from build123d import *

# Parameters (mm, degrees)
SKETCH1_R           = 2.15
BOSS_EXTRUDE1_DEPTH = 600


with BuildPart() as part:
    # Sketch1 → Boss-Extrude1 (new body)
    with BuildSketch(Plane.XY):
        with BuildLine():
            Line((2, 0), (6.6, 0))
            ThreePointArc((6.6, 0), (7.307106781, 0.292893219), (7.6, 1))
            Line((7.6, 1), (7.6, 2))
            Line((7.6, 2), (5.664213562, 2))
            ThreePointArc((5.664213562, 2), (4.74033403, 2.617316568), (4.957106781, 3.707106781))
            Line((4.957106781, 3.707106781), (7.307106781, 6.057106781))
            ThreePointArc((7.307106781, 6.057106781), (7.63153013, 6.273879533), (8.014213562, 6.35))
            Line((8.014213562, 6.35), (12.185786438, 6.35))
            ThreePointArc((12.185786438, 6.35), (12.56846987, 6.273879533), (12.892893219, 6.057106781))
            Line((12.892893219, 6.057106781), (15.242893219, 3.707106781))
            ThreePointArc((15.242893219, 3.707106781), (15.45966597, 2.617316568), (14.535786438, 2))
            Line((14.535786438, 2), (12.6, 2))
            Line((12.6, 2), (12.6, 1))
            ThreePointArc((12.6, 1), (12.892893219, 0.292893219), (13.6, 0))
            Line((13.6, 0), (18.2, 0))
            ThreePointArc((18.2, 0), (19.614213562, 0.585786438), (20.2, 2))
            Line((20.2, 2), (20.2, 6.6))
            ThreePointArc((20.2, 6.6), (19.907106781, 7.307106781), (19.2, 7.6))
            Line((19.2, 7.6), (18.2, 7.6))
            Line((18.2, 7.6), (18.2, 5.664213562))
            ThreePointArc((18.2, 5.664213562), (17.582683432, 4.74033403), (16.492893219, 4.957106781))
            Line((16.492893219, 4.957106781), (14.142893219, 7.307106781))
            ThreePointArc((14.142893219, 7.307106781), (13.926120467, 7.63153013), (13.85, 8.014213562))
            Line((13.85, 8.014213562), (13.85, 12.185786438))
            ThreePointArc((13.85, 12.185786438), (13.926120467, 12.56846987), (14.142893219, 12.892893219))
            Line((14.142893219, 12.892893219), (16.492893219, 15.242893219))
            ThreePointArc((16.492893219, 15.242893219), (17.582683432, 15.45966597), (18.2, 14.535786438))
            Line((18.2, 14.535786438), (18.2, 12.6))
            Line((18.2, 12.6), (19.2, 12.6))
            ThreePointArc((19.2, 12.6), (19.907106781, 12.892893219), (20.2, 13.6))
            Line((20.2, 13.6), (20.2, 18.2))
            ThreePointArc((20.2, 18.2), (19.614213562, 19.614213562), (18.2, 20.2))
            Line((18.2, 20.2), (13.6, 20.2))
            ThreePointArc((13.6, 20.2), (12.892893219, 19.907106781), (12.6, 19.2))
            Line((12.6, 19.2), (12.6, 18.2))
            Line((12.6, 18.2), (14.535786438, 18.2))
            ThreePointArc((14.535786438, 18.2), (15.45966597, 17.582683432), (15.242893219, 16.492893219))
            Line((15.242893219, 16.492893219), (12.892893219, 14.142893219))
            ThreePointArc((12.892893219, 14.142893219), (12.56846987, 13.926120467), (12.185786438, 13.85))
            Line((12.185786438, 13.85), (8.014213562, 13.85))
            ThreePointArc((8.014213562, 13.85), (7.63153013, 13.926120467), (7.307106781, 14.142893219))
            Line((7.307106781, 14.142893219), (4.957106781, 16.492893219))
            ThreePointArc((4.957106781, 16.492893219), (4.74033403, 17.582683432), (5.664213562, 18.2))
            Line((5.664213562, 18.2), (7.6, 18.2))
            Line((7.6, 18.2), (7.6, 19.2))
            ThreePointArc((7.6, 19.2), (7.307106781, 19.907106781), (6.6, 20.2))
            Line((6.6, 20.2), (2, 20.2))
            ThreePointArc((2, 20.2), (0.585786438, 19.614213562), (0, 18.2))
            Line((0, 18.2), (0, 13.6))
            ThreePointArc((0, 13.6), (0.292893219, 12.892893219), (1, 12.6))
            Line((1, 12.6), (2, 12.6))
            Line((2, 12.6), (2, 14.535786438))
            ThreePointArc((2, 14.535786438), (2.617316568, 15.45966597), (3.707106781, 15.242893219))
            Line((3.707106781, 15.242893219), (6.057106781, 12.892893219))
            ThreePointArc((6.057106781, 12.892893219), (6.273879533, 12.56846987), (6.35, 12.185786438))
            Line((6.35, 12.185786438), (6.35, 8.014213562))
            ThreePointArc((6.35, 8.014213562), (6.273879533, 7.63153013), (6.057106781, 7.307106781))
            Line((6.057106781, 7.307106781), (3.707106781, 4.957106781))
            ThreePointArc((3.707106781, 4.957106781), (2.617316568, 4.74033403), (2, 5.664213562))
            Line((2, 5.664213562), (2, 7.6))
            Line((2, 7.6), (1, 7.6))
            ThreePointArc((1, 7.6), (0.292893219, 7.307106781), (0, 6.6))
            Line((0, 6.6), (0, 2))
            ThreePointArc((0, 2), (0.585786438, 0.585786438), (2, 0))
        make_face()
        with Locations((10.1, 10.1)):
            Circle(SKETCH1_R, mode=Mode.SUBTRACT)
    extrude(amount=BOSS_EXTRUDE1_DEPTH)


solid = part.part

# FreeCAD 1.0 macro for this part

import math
import FreeCAD as App
import Part
import Sketcher

V = App.Vector
Q = App.Units.Quantity

doc = App.newDocument("Part")
params = doc.addObject("Spreadsheet::Sheet", "Params")
for row, (alias, value) in enumerate([
    ("sketch1_radius", "1 mm"),
    ("sketch1_radius2", "2 mm"),
    ("sketch1_diameter", "4.3 mm"),
    ("sketch1_width", "4.6 mm"),
    ("pad1_length", "600 mm"),
], start=1):
    params.set(f"A{row}", alias)
    params.set(f"B{row}", "=" + value)
    params.setAlias(f"B{row}", alias)

body = doc.addObject("PartDesign::Body", "Body")

# Sketch on XY plane
sketch1 = body.newObject("Sketcher::SketchObject", "Sketch")
sketch1.AttachmentSupport = (doc.getObject("XY_Plane"), [""])
sketch1.MapMode = "FlatFace"
sketch1.addGeometry([
    Part.LineSegment(V(2, 0, 0), V(6.6, 0, 0)),  # 0
    Part.ArcOfCircle(Part.Circle(V(6.6, 1, 0), V(0, 0, 1), 1), math.radians(-90), math.radians(0)),  # 1
    Part.LineSegment(V(7.6, 1, 0), V(7.6, 2, 0)),  # 2
    Part.LineSegment(V(7.6, 2, 0), V(5.7, 2, 0)),  # 3
    Part.ArcOfCircle(Part.Circle(V(5.7, 3, 0), V(0, 0, 1), 1), math.radians(135), math.radians(270)),  # 4
    Part.LineSegment(V(5, 3.7, 0), V(7.3, 6.1, 0)),  # 5
    Part.ArcOfCircle(Part.Circle(V(8, 5.4, 0), V(0, 0, 1), 1), math.radians(90), math.radians(135)),  # 6
    Part.LineSegment(V(8, 6.3, 0), V(12.2, 6.3, 0)),  # 7
    Part.ArcOfCircle(Part.Circle(V(12.2, 5.4, 0), V(0, 0, 1), 1), math.radians(45), math.radians(90)),  # 8
    Part.LineSegment(V(12.9, 6.1, 0), V(15.2, 3.7, 0)),  # 9
    Part.ArcOfCircle(Part.Circle(V(14.5, 3, 0), V(0, 0, 1), 1), math.radians(-90), math.radians(45)),  # 10
    Part.LineSegment(V(14.5, 2, 0), V(12.6, 2, 0)),  # 11
    Part.LineSegment(V(12.6, 2, 0), V(12.6, 1, 0)),  # 12
    Part.ArcOfCircle(Part.Circle(V(13.6, 1, 0), V(0, 0, 1), 1), math.radians(-180), math.radians(-90)),  # 13
    Part.LineSegment(V(13.6, 0, 0), V(18.2, 0, 0)),  # 14
    Part.ArcOfCircle(Part.Circle(V(18.2, 2, 0), V(0, 0, 1), 2), math.radians(-90), math.radians(0)),  # 15
    Part.LineSegment(V(20.2, 2, 0), V(20.2, 6.6, 0)),  # 16
    Part.ArcOfCircle(Part.Circle(V(19.2, 6.6, 0), V(0, 0, 1), 1), math.radians(0), math.radians(90)),  # 17
    Part.LineSegment(V(19.2, 7.6, 0), V(18.2, 7.6, 0)),  # 18
    Part.LineSegment(V(18.2, 7.6, 0), V(18.2, 5.7, 0)),  # 19
    Part.ArcOfCircle(Part.Circle(V(17.2, 5.7, 0), V(0, 0, 1), 1), math.radians(-135), math.radians(0)),  # 20
    Part.LineSegment(V(16.5, 5, 0), V(14.1, 7.3, 0)),  # 21
    Part.ArcOfCircle(Part.Circle(V(14.8, 8, 0), V(0, 0, 1), 1), math.radians(180), math.radians(225)),  # 22
    Part.LineSegment(V(13.8, 8, 0), V(13.8, 12.2, 0)),  # 23
    Part.ArcOfCircle(Part.Circle(V(14.8, 12.2, 0), V(0, 0, 1), 1), math.radians(135), math.radians(180)),  # 24
    Part.LineSegment(V(14.1, 12.9, 0), V(16.5, 15.2, 0)),  # 25
    Part.ArcOfCircle(Part.Circle(V(17.2, 14.5, 0), V(0, 0, 1), 1), math.radians(0), math.radians(135)),  # 26
    Part.LineSegment(V(18.2, 14.5, 0), V(18.2, 12.6, 0)),  # 27
    Part.LineSegment(V(18.2, 12.6, 0), V(19.2, 12.6, 0)),  # 28
    Part.ArcOfCircle(Part.Circle(V(19.2, 13.6, 0), V(0, 0, 1), 1), math.radians(-90), math.radians(0)),  # 29
    Part.LineSegment(V(20.2, 13.6, 0), V(20.2, 18.2, 0)),  # 30
    Part.ArcOfCircle(Part.Circle(V(18.2, 18.2, 0), V(0, 0, 1), 2), math.radians(0), math.radians(90)),  # 31
    Part.LineSegment(V(18.2, 20.2, 0), V(13.6, 20.2, 0)),  # 32
    Part.ArcOfCircle(Part.Circle(V(13.6, 19.2, 0), V(0, 0, 1), 1), math.radians(90), math.radians(180)),  # 33
    Part.LineSegment(V(12.6, 19.2, 0), V(12.6, 18.2, 0)),  # 34
    Part.LineSegment(V(12.6, 18.2, 0), V(14.5, 18.2, 0)),  # 35
    Part.ArcOfCircle(Part.Circle(V(14.5, 17.2, 0), V(0, 0, 1), 1), math.radians(-45), math.radians(90)),  # 36
    Part.LineSegment(V(15.2, 16.5, 0), V(12.9, 14.1, 0)),  # 37
    Part.ArcOfCircle(Part.Circle(V(12.2, 14.8, 0), V(0, 0, 1), 1), math.radians(-90), math.radians(-45)),  # 38
    Part.LineSegment(V(12.2, 13.8, 0), V(8, 13.8, 0)),  # 39
    Part.ArcOfCircle(Part.Circle(V(8, 14.8, 0), V(0, 0, 1), 1), math.radians(-135), math.radians(-90)),  # 40
    Part.LineSegment(V(7.3, 14.1, 0), V(5, 16.5, 0)),  # 41
    Part.ArcOfCircle(Part.Circle(V(5.7, 17.2, 0), V(0, 0, 1), 1), math.radians(90), math.radians(225)),  # 42
    Part.LineSegment(V(5.7, 18.2, 0), V(7.6, 18.2, 0)),  # 43
    Part.LineSegment(V(7.6, 18.2, 0), V(7.6, 19.2, 0)),  # 44
    Part.ArcOfCircle(Part.Circle(V(6.6, 19.2, 0), V(0, 0, 1), 1), math.radians(0), math.radians(90)),  # 45
    Part.LineSegment(V(6.6, 20.2, 0), V(2, 20.2, 0)),  # 46
    Part.ArcOfCircle(Part.Circle(V(2, 18.2, 0), V(0, 0, 1), 2), math.radians(90), math.radians(180)),  # 47
    Part.LineSegment(V(0, 18.2, 0), V(0, 13.6, 0)),  # 48
    Part.ArcOfCircle(Part.Circle(V(1, 13.6, 0), V(0, 0, 1), 1), math.radians(-180), math.radians(-90)),  # 49
    Part.LineSegment(V(1, 12.6, 0), V(2, 12.6, 0)),  # 50
    Part.LineSegment(V(2, 12.6, 0), V(2, 14.5, 0)),  # 51
    Part.ArcOfCircle(Part.Circle(V(3, 14.5, 0), V(0, 0, 1), 1), math.radians(45), math.radians(180)),  # 52
    Part.LineSegment(V(3.7, 15.2, 0), V(6.1, 12.9, 0)),  # 53
    Part.ArcOfCircle(Part.Circle(V(5.4, 12.2, 0), V(0, 0, 1), 1), math.radians(0), math.radians(45)),  # 54
    Part.LineSegment(V(6.3, 12.2, 0), V(6.3, 8, 0)),  # 55
    Part.ArcOfCircle(Part.Circle(V(5.4, 8, 0), V(0, 0, 1), 1), math.radians(-45), math.radians(0)),  # 56
    Part.LineSegment(V(6.1, 7.3, 0), V(3.7, 5, 0)),  # 57
    Part.ArcOfCircle(Part.Circle(V(3, 5.7, 0), V(0, 0, 1), 1), math.radians(-180), math.radians(-45)),  # 58
    Part.LineSegment(V(2, 5.7, 0), V(2, 7.6, 0)),  # 59
    Part.LineSegment(V(2, 7.6, 0), V(1, 7.6, 0)),  # 60
    Part.ArcOfCircle(Part.Circle(V(1, 6.6, 0), V(0, 0, 1), 1), math.radians(90), math.radians(180)),  # 61
    Part.LineSegment(V(0, 6.6, 0), V(0, 2, 0)),  # 62
    Part.ArcOfCircle(Part.Circle(V(2, 2, 0), V(0, 0, 1), 2), math.radians(-180), math.radians(-90)),  # 63
    Part.Circle(V(10.1, 10.1, 0), V(0, 0, 1), 2.1),  # 64
], False)
sketch1.addConstraint([
    Sketcher.Constraint("Tangent", 0, 2, 1, 1),
    Sketcher.Constraint("Tangent", 1, 2, 2, 1),
    Sketcher.Constraint("Coincident", 2, 2, 3, 1),
    Sketcher.Constraint("Tangent", 3, 2, 4, 2),
    Sketcher.Constraint("Tangent", 4, 1, 5, 1),
    Sketcher.Constraint("Tangent", 5, 2, 6, 2),
    Sketcher.Constraint("Tangent", 6, 1, 7, 1),
    Sketcher.Constraint("Tangent", 7, 2, 8, 2),
    Sketcher.Constraint("Tangent", 8, 1, 9, 1),
    Sketcher.Constraint("Tangent", 9, 2, 10, 2),
    Sketcher.Constraint("Tangent", 10, 1, 11, 1),
    Sketcher.Constraint("Coincident", 11, 2, 12, 1),
    Sketcher.Constraint("Tangent", 12, 2, 13, 1),
    Sketcher.Constraint("Tangent", 13, 2, 14, 1),
    Sketcher.Constraint("Tangent", 14, 2, 15, 1),
    Sketcher.Constraint("Tangent", 15, 2, 16, 1),
    Sketcher.Constraint("Tangent", 16, 2, 17, 1),
    Sketcher.Constraint("Tangent", 17, 2, 18, 1),
    Sketcher.Constraint("Coincident", 18, 2, 19, 1),
    Sketcher.Constraint("Tangent", 19, 2, 20, 2),
    Sketcher.Constraint("Tangent", 20, 1, 21, 1),
    Sketcher.Constraint("Tangent", 21, 2, 22, 2),
    Sketcher.Constraint("Tangent", 22, 1, 23, 1),
    Sketcher.Constraint("Tangent", 23, 2, 24, 2),
    Sketcher.Constraint("Tangent", 24, 1, 25, 1),
    Sketcher.Constraint("Tangent", 25, 2, 26, 2),
    Sketcher.Constraint("Tangent", 26, 1, 27, 1),
    Sketcher.Constraint("Coincident", 27, 2, 28, 1),
    Sketcher.Constraint("Tangent", 28, 2, 29, 1),
    Sketcher.Constraint("Tangent", 29, 2, 30, 1),
    Sketcher.Constraint("Tangent", 30, 2, 31, 1),
    Sketcher.Constraint("Tangent", 31, 2, 32, 1),
    Sketcher.Constraint("Tangent", 32, 2, 33, 1),
    Sketcher.Constraint("Tangent", 33, 2, 34, 1),
    Sketcher.Constraint("Coincident", 34, 2, 35, 1),
    Sketcher.Constraint("Tangent", 35, 2, 36, 2),
    Sketcher.Constraint("Tangent", 36, 1, 37, 1),
    Sketcher.Constraint("Tangent", 37, 2, 38, 2),
    Sketcher.Constraint("Tangent", 38, 1, 39, 1),
    Sketcher.Constraint("Tangent", 39, 2, 40, 2),
    Sketcher.Constraint("Tangent", 40, 1, 41, 1),
    Sketcher.Constraint("Tangent", 41, 2, 42, 2),
    Sketcher.Constraint("Tangent", 42, 1, 43, 1),
    Sketcher.Constraint("Coincident", 43, 2, 44, 1),
    Sketcher.Constraint("Tangent", 44, 2, 45, 1),
    Sketcher.Constraint("Tangent", 45, 2, 46, 1),
    Sketcher.Constraint("Tangent", 46, 2, 47, 1),
    Sketcher.Constraint("Tangent", 47, 2, 48, 1),
    Sketcher.Constraint("Tangent", 48, 2, 49, 1),
    Sketcher.Constraint("Tangent", 49, 2, 50, 1),
    Sketcher.Constraint("Coincident", 50, 2, 51, 1),
    Sketcher.Constraint("Tangent", 51, 2, 52, 2),
    Sketcher.Constraint("Tangent", 52, 1, 53, 1),
    Sketcher.Constraint("Tangent", 53, 2, 54, 2),
    Sketcher.Constraint("Tangent", 54, 1, 55, 1),
    Sketcher.Constraint("Tangent", 55, 2, 56, 2),
    Sketcher.Constraint("Tangent", 56, 1, 57, 1),
    Sketcher.Constraint("Tangent", 57, 2, 58, 2),
    Sketcher.Constraint("Tangent", 58, 1, 59, 1),
    Sketcher.Constraint("Coincident", 59, 2, 60, 1),
    Sketcher.Constraint("Tangent", 60, 2, 61, 1),
    Sketcher.Constraint("Tangent", 61, 2, 62, 1),
    Sketcher.Constraint("Tangent", 62, 2, 63, 1),
    Sketcher.Constraint("Tangent", 63, 2, 0, 1),
    Sketcher.Constraint("Horizontal", 0),
    Sketcher.Constraint("Vertical", 2),
    Sketcher.Constraint("Horizontal", 3),
    Sketcher.Constraint("Horizontal", 7),
    Sketcher.Constraint("Horizontal", 11),
    Sketcher.Constraint("Vertical", 12),
    Sketcher.Constraint("Horizontal", 14),
    Sketcher.Constraint("Vertical", 16),
    Sketcher.Constraint("Horizontal", 18),
    Sketcher.Constraint("Vertical", 19),
    Sketcher.Constraint("Vertical", 23),
    Sketcher.Constraint("Vertical", 27),
    Sketcher.Constraint("Horizontal", 28),
    Sketcher.Constraint("Vertical", 30),
    Sketcher.Constraint("Horizontal", 32),
    Sketcher.Constraint("Vertical", 34),
    Sketcher.Constraint("Horizontal", 35),
    Sketcher.Constraint("Horizontal", 39),
    Sketcher.Constraint("Horizontal", 43),
    Sketcher.Constraint("Vertical", 44),
    Sketcher.Constraint("Horizontal", 46),
    Sketcher.Constraint("Vertical", 48),
    Sketcher.Constraint("Horizontal", 50),
    Sketcher.Constraint("Vertical", 51),
    Sketcher.Constraint("Vertical", 55),
    Sketcher.Constraint("Vertical", 59),
    Sketcher.Constraint("Horizontal", 60),
    Sketcher.Constraint("Vertical", 62),
    Sketcher.Constraint("Equal", 1, 4),
    Sketcher.Constraint("Equal", 4, 6),
    Sketcher.Constraint("Equal", 6, 8),
    Sketcher.Constraint("Equal", 8, 10),
    Sketcher.Constraint("Equal", 10, 13),
    Sketcher.Constraint("Equal", 13, 17),
    Sketcher.Constraint("Equal", 17, 20),
    Sketcher.Constraint("Equal", 20, 22),
    Sketcher.Constraint("Equal", 22, 24),
    Sketcher.Constraint("Equal", 24, 26),
    Sketcher.Constraint("Equal", 26, 29),
    Sketcher.Constraint("Equal", 15, 31),
    Sketcher.Constraint("Equal", 29, 33),
    Sketcher.Constraint("Equal", 33, 36),
    Sketcher.Constraint("Equal", 36, 38),
    Sketcher.Constraint("Equal", 38, 40),
    Sketcher.Constraint("Equal", 40, 42),
    Sketcher.Constraint("Equal", 42, 45),
    Sketcher.Constraint("Equal", 31, 47),
    Sketcher.Constraint("Equal", 45, 49),
    Sketcher.Constraint("Equal", 49, 52),
    Sketcher.Constraint("Equal", 52, 54),
    Sketcher.Constraint("Equal", 54, 56),
    Sketcher.Constraint("Equal", 56, 58),
    Sketcher.Constraint("Equal", 58, 61),
    Sketcher.Constraint("Equal", 47, 63),
    Sketcher.Constraint("PointOnObject", 0, 2, -1),
    Sketcher.Constraint("PointOnObject", 13, 2, -1),
    Sketcher.Constraint("PointOnObject", 47, 2, -2),
    Sketcher.Constraint("PointOnObject", 61, 2, -2),
    Sketcher.Constraint("Perpendicular", 5, 9),
    Sketcher.Constraint("Parallel", 9, 21),
    Sketcher.Constraint("Perpendicular", 21, 25),
    Sketcher.Constraint("Parallel", 25, 37),
    Sketcher.Constraint("Perpendicular", 37, 41),
    Sketcher.Constraint("Parallel", 41, 53),
    Sketcher.Constraint("Perpendicular", 53, 57),
    Sketcher.Constraint("Horizontal", 4, 3, 10, 3),
    Sketcher.Constraint("Horizontal", 36, 3, 42, 3),
    Sketcher.Constraint("Horizontal", 33, 3, 45, 3),
    Sketcher.Constraint("Horizontal", 29, 3, 49, 3),
    Sketcher.Constraint("Horizontal", 26, 3, 52, 3),
    Sketcher.Constraint("Horizontal", 24, 3, 54, 3),
    Sketcher.Constraint("Horizontal", 22, 3, 56, 3),
    Sketcher.Constraint("Horizontal", 20, 3, 58, 3),
    Sketcher.Constraint("Horizontal", 17, 3, 61, 3),
    Sketcher.Constraint("Horizontal", 63, 3, 2, 2),
    Sketcher.Constraint("Horizontal", 5, 2, 8, 1),
    Sketcher.Constraint("Horizontal", 30, 2, 34, 2),
    Sketcher.Constraint("Vertical", 20, 3, 26, 3),
    Sketcher.Constraint("Vertical", 17, 3, 29, 3),
    Sketcher.Constraint("Vertical", 13, 3, 33, 3),
    Sketcher.Constraint("Vertical", 10, 3, 36, 3),
    Sketcher.Constraint("Vertical", 8, 3, 38, 3),
    Sketcher.Constraint("Vertical", 6, 3, 40, 3),
    Sketcher.Constraint("Vertical", 1, 3, 45, 3),
    Sketcher.Constraint("Vertical", 14, 2, 18, 2),
    Sketcher.Constraint("Vertical", 46, 2, 50, 2),
    Sketcher.Constraint("Equal", 3, 11),
    Sketcher.Constraint("Equal", 0, 14),
    Sketcher.Constraint("Equal", 46, 16),
    Sketcher.Constraint("Equal", 43, 19),
    Sketcher.Constraint("Equal", 39, 23),
    Sketcher.Constraint("Equal", 19, 27),
    Sketcher.Constraint("Equal", 16, 30),
    Sketcher.Constraint("Equal", 9, 21),
    Sketcher.Constraint("Radius", 1, Q("1 mm")),
    Sketcher.Constraint("Radius", 15, Q("2 mm")),
    Sketcher.Constraint("Diameter", 64, Q("4.3 mm")),
    Sketcher.Constraint("DistanceX", 0, 1, 0, 2, Q("4.6 mm")),
    Sketcher.Constraint("DistanceX", -1, 1, 13, 3, Q("13.6 mm")),
    Sketcher.Constraint("DistanceX", -1, 1, 64, 3, Q("10.1 mm")),
    Sketcher.Constraint("DistanceY", -1, 1, 64, 3, Q("10.1 mm")),
    Sketcher.Constraint("DistanceY", -1, 1, 6, 3, Q("5.35 mm")),
    Sketcher.Constraint("DistanceX", 3, 2, 3, 1, Q("1.935786 mm")),
])
sketch1.setExpression("Constraints[158]", "Params.sketch1_radius")
sketch1.setExpression("Constraints[159]", "Params.sketch1_radius2")
sketch1.setExpression("Constraints[160]", "Params.sketch1_diameter")
sketch1.setExpression("Constraints[161]", "Params.sketch1_width")
pad1 = body.newObject("PartDesign::Pad", "Pad")
pad1.Profile = sketch1
pad1.setExpression("Length", "Params.pad1_length")

doc.recompute()
